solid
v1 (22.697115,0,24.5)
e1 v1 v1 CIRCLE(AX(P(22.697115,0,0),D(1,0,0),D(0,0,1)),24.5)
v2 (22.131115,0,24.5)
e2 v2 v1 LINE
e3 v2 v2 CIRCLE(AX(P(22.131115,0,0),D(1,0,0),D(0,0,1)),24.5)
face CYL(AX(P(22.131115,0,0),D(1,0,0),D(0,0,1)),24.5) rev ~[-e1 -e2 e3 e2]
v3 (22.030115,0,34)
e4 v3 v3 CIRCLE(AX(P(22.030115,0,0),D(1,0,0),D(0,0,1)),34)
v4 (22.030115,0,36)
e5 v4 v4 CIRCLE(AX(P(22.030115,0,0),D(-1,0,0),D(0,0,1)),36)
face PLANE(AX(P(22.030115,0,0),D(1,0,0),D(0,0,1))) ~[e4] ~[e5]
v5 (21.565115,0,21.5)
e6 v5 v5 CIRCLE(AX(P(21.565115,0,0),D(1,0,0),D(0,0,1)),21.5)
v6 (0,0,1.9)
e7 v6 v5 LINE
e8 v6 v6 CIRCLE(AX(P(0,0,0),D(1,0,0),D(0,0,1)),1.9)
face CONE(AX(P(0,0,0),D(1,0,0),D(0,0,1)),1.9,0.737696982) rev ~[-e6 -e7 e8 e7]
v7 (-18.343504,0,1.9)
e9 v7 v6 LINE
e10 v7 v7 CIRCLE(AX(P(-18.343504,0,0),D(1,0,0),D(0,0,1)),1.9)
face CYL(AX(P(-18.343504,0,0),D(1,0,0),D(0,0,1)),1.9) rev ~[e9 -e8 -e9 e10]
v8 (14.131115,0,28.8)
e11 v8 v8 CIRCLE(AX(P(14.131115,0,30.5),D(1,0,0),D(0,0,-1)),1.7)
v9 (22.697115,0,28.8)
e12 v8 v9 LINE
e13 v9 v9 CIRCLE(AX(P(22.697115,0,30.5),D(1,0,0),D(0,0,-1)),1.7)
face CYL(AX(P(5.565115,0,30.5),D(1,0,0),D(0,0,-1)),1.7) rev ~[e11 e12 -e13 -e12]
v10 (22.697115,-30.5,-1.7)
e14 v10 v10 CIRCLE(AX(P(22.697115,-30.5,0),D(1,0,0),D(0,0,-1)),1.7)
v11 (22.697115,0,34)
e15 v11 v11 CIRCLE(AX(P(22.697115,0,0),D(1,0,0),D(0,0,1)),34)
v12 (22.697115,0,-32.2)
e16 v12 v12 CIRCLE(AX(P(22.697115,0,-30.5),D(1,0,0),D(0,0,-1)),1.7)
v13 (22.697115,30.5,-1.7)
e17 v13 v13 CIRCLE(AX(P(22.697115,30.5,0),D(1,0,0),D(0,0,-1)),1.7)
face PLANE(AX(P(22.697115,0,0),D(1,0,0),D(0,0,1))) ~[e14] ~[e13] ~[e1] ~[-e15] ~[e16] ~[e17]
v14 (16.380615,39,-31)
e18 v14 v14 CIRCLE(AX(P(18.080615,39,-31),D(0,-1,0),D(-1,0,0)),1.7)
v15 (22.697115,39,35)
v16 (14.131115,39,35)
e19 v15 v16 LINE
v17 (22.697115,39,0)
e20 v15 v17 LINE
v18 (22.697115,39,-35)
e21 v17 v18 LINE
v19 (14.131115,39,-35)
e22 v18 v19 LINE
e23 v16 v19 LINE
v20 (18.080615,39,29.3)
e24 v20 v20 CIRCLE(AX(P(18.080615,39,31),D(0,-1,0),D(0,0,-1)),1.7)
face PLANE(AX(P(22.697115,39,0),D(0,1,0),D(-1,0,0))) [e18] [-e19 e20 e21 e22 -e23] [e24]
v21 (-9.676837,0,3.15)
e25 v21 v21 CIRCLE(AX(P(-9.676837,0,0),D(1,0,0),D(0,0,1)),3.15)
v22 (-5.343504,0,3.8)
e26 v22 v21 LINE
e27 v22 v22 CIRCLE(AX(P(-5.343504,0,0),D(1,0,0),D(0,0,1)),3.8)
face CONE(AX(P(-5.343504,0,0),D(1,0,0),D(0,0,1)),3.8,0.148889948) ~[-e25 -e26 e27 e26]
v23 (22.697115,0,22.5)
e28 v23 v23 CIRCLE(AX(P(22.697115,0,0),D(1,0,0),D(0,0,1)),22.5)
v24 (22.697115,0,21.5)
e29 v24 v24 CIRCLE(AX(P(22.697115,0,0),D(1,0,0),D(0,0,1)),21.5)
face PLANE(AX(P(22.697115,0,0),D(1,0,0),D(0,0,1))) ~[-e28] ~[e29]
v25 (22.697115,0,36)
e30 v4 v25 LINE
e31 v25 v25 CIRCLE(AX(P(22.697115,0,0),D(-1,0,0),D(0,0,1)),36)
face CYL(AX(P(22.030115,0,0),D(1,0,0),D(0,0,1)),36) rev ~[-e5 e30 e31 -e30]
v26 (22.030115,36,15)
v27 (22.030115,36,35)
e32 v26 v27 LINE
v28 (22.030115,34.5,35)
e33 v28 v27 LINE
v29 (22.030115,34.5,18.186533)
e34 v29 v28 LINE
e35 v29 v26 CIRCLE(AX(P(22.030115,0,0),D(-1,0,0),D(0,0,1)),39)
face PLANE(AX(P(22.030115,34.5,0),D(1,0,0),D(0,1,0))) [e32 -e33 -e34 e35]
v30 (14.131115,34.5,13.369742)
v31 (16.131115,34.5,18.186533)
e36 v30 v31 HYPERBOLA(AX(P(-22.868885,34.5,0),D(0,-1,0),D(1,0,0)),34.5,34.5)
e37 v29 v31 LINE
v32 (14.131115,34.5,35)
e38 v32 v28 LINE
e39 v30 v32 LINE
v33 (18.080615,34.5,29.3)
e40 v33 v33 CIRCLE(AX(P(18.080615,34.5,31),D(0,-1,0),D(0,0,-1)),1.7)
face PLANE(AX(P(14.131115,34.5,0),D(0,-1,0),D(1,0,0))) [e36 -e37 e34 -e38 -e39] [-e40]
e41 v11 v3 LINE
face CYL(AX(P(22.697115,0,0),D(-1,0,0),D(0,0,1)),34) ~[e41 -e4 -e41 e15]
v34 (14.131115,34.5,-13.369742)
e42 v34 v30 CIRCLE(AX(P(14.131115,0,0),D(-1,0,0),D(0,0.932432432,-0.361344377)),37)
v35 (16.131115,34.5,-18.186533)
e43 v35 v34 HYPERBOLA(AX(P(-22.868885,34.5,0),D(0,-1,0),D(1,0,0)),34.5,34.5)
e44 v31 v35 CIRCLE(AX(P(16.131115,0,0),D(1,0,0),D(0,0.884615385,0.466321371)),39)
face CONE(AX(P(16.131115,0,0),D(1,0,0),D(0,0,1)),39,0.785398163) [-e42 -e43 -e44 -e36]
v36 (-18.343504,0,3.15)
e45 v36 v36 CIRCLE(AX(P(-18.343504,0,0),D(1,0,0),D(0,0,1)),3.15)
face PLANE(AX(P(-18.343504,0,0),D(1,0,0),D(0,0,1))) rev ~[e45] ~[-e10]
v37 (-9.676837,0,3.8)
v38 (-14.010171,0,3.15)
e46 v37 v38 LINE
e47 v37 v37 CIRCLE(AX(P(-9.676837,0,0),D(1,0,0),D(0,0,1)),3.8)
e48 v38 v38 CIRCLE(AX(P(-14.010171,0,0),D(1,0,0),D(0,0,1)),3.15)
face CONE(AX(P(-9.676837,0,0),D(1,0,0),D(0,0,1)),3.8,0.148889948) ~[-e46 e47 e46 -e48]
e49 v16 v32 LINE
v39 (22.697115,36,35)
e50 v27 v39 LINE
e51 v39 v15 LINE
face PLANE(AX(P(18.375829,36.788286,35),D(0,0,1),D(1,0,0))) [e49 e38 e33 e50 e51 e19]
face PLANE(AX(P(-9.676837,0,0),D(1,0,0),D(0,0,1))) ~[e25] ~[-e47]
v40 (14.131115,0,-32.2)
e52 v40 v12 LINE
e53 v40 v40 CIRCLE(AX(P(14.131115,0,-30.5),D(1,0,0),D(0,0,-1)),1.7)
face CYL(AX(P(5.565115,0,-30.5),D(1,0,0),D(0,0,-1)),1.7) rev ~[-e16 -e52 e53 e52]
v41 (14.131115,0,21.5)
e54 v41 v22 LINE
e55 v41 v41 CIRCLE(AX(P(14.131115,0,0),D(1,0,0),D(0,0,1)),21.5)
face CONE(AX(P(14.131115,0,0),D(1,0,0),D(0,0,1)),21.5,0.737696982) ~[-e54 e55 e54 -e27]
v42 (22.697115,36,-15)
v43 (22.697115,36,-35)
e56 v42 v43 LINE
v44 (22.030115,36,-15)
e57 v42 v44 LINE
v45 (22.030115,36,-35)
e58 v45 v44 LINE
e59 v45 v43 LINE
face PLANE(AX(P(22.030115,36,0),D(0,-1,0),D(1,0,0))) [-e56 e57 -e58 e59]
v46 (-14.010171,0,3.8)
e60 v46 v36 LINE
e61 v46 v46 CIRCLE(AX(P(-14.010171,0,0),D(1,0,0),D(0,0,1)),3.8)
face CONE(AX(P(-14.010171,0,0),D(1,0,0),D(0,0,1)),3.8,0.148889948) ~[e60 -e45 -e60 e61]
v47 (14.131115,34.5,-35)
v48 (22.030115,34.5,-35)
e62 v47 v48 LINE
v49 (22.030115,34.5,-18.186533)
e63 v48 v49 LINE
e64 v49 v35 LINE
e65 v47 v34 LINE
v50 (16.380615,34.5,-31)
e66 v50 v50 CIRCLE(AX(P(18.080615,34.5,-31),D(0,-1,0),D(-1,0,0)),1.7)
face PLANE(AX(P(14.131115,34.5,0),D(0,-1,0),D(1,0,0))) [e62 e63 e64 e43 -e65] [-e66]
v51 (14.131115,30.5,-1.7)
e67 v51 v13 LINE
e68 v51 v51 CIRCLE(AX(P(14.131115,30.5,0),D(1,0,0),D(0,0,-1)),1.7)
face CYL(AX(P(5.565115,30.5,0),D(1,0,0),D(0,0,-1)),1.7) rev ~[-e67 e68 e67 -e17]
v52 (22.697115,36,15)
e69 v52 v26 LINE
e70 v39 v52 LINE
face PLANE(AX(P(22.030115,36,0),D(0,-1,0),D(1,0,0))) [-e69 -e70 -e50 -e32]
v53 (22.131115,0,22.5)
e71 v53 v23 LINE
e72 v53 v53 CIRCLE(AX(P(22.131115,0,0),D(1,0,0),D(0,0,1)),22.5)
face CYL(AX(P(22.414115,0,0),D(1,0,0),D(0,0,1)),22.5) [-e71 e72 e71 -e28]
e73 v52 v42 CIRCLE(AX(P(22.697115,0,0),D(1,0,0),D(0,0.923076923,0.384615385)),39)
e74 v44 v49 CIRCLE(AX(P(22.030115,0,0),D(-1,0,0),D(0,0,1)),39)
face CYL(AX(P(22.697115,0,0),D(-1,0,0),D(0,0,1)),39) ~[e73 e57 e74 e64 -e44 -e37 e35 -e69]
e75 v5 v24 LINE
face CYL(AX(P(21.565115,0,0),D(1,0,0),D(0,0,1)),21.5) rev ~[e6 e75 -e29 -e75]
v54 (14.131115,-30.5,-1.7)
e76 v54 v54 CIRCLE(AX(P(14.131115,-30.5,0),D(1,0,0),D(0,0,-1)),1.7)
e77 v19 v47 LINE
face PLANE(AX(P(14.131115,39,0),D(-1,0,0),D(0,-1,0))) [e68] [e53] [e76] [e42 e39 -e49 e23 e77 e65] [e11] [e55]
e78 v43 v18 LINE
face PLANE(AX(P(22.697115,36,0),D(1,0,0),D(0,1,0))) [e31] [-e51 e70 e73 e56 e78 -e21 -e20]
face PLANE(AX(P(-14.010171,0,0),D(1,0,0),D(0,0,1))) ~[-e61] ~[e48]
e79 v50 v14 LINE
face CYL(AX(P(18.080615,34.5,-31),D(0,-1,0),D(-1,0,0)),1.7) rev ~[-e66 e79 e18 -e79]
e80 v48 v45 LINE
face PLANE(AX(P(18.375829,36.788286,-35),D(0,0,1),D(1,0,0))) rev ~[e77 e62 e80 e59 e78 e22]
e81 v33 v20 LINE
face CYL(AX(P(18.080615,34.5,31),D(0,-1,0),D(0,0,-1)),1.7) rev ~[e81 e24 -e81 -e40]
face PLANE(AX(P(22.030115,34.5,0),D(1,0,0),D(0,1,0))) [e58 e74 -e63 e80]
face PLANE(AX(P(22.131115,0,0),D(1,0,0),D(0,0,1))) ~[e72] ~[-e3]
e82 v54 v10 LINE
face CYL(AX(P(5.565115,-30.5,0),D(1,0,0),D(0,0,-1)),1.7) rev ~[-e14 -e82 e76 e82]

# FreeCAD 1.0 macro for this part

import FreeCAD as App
import Part
import Sketcher

V = App.Vector
Q = App.Units.Quantity


def edges_at(feature, points):
    """Names of the edges that pass closest to the given points."""
    edges = feature.Shape.Edges
    near = lambda p: min(range(len(edges)), key=lambda i: edges[i].distToShape(Part.Vertex(*p))[0])
    return sorted({f"Edge{near(p) + 1}" for p in points})


def add_polygon(sketch, points):
    """Adds a closed chain of lines whose ends are joined by coincident constraints."""
    first, n = sketch.GeometryCount, len(points)
    for a, b in zip(points, points[1:] + points[:1]):
        sketch.addGeometry(Part.LineSegment(App.Vector(*a, 0), App.Vector(*b, 0)), False)
    for i in range(n):
        sketch.addConstraint(Sketcher.Constraint("Coincident", first + i, 2, first + (i + 1) % n, 1))

doc = App.newDocument("Part")
params = doc.addObject("Spreadsheet::Sheet", "Params")
for row, (alias, value) in enumerate([
    ("sketch1_height", "1 mm"),
    ("sketch1_height2", "2 mm"),
    ("sketch1_height3", "3 mm"),
    ("sketch1_height4", "17.5 mm"),
    ("sketch1_height5", "0.65 mm"),
    ("revolution_angle", "360 deg"),
    ("sketch2_diameter", "3.4 mm"),
    ("hole_diameter", "3.4 mm"),
    ("hole_depth", "8.566 mm"),
    ("chamfer_size", "2 mm"),
    ("sketch3_height", "3 mm"),
    ("sketch3_height2", "4.5 mm"),
    ("pad1_length", "70 mm"),
    ("sketch4_diameter", "3.4 mm"),
    ("pocket1_length", "10 mm"),
], start=1):
    params.set(f"A{row}", alias)
    params.set(f"B{row}", "=" + value)
    params.setAlias(f"B{row}", alias)

body = doc.addObject("PartDesign::Body", "Body")

# Sketch on XY plane
sketch1 = body.newObject("Sketcher::SketchObject", "Sketch")
sketch1.AttachmentSupport = (doc.getObject("XY_Plane"), [""])
sketch1.MapMode = "FlatFace"
add_polygon(sketch1, [(14.1, 39), (14.1, 21.5), (-5.3, 3.8), (-9.7, 3.1), (-9.7, 3.8), (-14, 3.1), (-14, 3.8), (-18.3, 3.1), (-18.3, 1.9), (0, 1.9), (21.6, 21.5), (22.7, 21.5), (22.7, 22.5), (22.1, 22.5), (22.1, 24.5), (22.7, 24.5), (22.7, 34), (22, 34), (22, 36), (22.7, 36), (22.7, 39)])  # lines 0-20
sketch1.addConstraint(Sketcher.Constraint("Vertical", 0))
sketch1.addConstraint(Sketcher.Constraint("Vertical", 3))
sketch1.addConstraint(Sketcher.Constraint("Vertical", 5))
sketch1.addConstraint(Sketcher.Constraint("Vertical", 7))
sketch1.addConstraint(Sketcher.Constraint("Horizontal", 8))
sketch1.addConstraint(Sketcher.Constraint("Horizontal", 10))
sketch1.addConstraint(Sketcher.Constraint("Vertical", 11))
sketch1.addConstraint(Sketcher.Constraint("Horizontal", 12))
sketch1.addConstraint(Sketcher.Constraint("Vertical", 13))
sketch1.addConstraint(Sketcher.Constraint("Horizontal", 14))
sketch1.addConstraint(Sketcher.Constraint("Vertical", 15))
sketch1.addConstraint(Sketcher.Constraint("Horizontal", 16))
sketch1.addConstraint(Sketcher.Constraint("Vertical", 17))
sketch1.addConstraint(Sketcher.Constraint("Horizontal", 18))
sketch1.addConstraint(Sketcher.Constraint("Vertical", 19))
sketch1.addConstraint(Sketcher.Constraint("Horizontal", 20))
sketch1.addConstraint(Sketcher.Constraint("PointOnObject", 8, 2, -2))
sketch1.addConstraint(Sketcher.Constraint("Parallel", 2, 4))
sketch1.addConstraint(Sketcher.Constraint("Parallel", 4, 6))
sketch1.addConstraint(Sketcher.Constraint("Parallel", 1, 9))
sketch1.addConstraint(Sketcher.Constraint("Horizontal", 1, 2, 3, 2))
sketch1.addConstraint(Sketcher.Constraint("Horizontal", 2, 2, 4, 2))
sketch1.addConstraint(Sketcher.Constraint("Horizontal", 3, 2, 5, 2))
sketch1.addConstraint(Sketcher.Constraint("Horizontal", 4, 2, 6, 2))
sketch1.addConstraint(Sketcher.Constraint("Horizontal", 0, 2, 9, 2))
sketch1.addConstraint(Sketcher.Constraint("Vertical", 11, 2, 14, 2))
sketch1.addConstraint(Sketcher.Constraint("Vertical", 15, 2, 18, 2))
sketch1.addConstraint(Sketcher.Constraint("Equal", 13, 17))
sketch1.addConstraint(Sketcher.Constraint("DistanceY", 11, 1, 11, 2, Q("1 mm")))
sketch1.addConstraint(Sketcher.Constraint("DistanceY", 13, 1, 13, 2, Q("2 mm")))
sketch1.addConstraint(Sketcher.Constraint("DistanceY", 19, 1, 19, 2, Q("3 mm")))
sketch1.addConstraint(Sketcher.Constraint("DistanceY", 0, 2, 0, 1, Q("17.5 mm")))
sketch1.addConstraint(Sketcher.Constraint("DistanceY", -1, 1, 15, 2, Q("34 mm")))
sketch1.addConstraint(Sketcher.Constraint("DistanceX", 6, 2, 1, 2, Q("13 mm")))
sketch1.addConstraint(Sketcher.Constraint("DistanceX", 0, 2, 12, 2, Q("8 mm")))
sketch1.addConstraint(Sketcher.Constraint("DistanceY", 3, 1, 3, 2, Q("0.65 mm")))
sketch1.addConstraint(Sketcher.Constraint("DistanceY", 7, 2, 7, 1, Q("1.25 mm")))
sketch1.addConstraint(Sketcher.Constraint("DistanceY", -1, 1, 1, 2, Q("3.8 mm")))
sketch1.addConstraint(Sketcher.Constraint("DistanceX", 10, 1, 10, 2, Q("1.132 mm")))
sketch1.addConstraint(Sketcher.Constraint("DistanceX", 12, 2, 12, 1, Q("0.566 mm")))
sketch1.addConstraint(Sketcher.Constraint("DistanceX", 16, 2, 16, 1, Q("0.667 mm")))
sketch1.addConstraint(Sketcher.Constraint("Distance", 1, Q("26.31636 mm")))
sketch1.setExpression("Constraints[49]", "Params.sketch1_height")
sketch1.setExpression("Constraints[50]", "Params.sketch1_height2")
sketch1.setExpression("Constraints[51]", "Params.sketch1_height3")
sketch1.setExpression("Constraints[52]", "Params.sketch1_height4")
sketch1.setExpression("Constraints[56]", "Params.sketch1_height5")
revolution = body.newObject("PartDesign::Revolution", "Revolution")
revolution.Profile = sketch1
revolution.ReferenceAxis = (sketch1, ["H_Axis"])
revolution.setExpression("Angle", "Params.revolution_angle")

# Sketch on YZ plane
sketch2 = body.newObject("Sketcher::SketchObject", "Sketch001")
sketch2.AttachmentSupport = (doc.getObject("YZ_Plane"), [""])
sketch2.MapMode = "FlatFace"
sketch2.AttachmentOffset = App.Placement(V(0, 0, 14.131115), App.Rotation())
sketch2.addGeometry(Part.Circle(V(-30.5, 0, 0), V(0, 0, 1), 1.7), False)
sketch2.addGeometry(Part.Circle(V(30.5, 0, 0), V(0, 0, 1), 1.7), False)
sketch2.addGeometry(Part.Circle(V(0, 30.5, 0), V(0, 0, 1), 1.7), False)
sketch2.addGeometry(Part.Circle(V(0, -30.5, 0), V(0, 0, 1), 1.7), False)
sketch2.addConstraint(Sketcher.Constraint("Equal", 0, 1))
sketch2.addConstraint(Sketcher.Constraint("Equal", 1, 2))
sketch2.addConstraint(Sketcher.Constraint("Equal", 2, 3))
sketch2.addConstraint(Sketcher.Constraint("Symmetric", 0, 3, 1, 3, -1, 1))
sketch2.addConstraint(Sketcher.Constraint("Symmetric", 2, 3, 3, 3, -1, 1))
sketch2.addConstraint(Sketcher.Constraint("PointOnObject", 0, 3, -1))
sketch2.addConstraint(Sketcher.Constraint("PointOnObject", 2, 3, -2))
sketch2.addConstraint(Sketcher.Constraint("Diameter", 0, Q("3.4 mm")))
sketch2.addConstraint(Sketcher.Constraint("DistanceX", 0, 3, 1, 3, Q("61 mm")))
sketch2.addConstraint(Sketcher.Constraint("DistanceY", 3, 3, 2, 3, Q("61 mm")))
sketch2.setExpression("Constraints[7]", "Params.sketch2_diameter")
doc.recompute()
hole = body.newObject("PartDesign::Hole", "Hole")
hole.Profile = sketch2
hole.ThreadType = "None"
hole.setExpression("Diameter", "Params.hole_diameter")
hole.DepthType = "Dimension"
hole.setExpression("Depth", "Params.hole_depth")
hole.DrillPoint = "Angled"
hole.DrillPointAngle = 118
hole.Reversed = True
doc.recompute()

chamfer = body.newObject("PartDesign::Chamfer", "Chamfer")
chamfer.Base = (hole, edges_at(hole, [(14.131, 0, -39)]))
chamfer.setExpression("Size", "Params.chamfer_size")

# Sketch on XY plane
sketch3 = body.newObject("Sketcher::SketchObject", "Sketch002")
sketch3.AttachmentSupport = (doc.getObject("XY_Plane"), [""])
sketch3.MapMode = "FlatFace"
add_polygon(sketch3, [(14.1, 39), (14.1, 34.5), (22, 34.5), (22, 36), (22.7, 36), (22.7, 39)])  # lines 0-5
sketch3.addConstraint(Sketcher.Constraint("Vertical", 0))
sketch3.addConstraint(Sketcher.Constraint("Horizontal", 1))
sketch3.addConstraint(Sketcher.Constraint("Vertical", 2))
sketch3.addConstraint(Sketcher.Constraint("Horizontal", 3))
sketch3.addConstraint(Sketcher.Constraint("Vertical", 4))
sketch3.addConstraint(Sketcher.Constraint("Horizontal", 5))
sketch3.addConstraint(Sketcher.Constraint("DistanceY", 4, 1, 4, 2, Q("3 mm")))
sketch3.addConstraint(Sketcher.Constraint("DistanceY", 0, 2, 0, 1, Q("4.5 mm")))
sketch3.addConstraint(Sketcher.Constraint("DistanceY", -1, 1, 2, 2, Q("36 mm")))
sketch3.addConstraint(Sketcher.Constraint("DistanceX", 1, 1, 1, 2, Q("7.899 mm")))
sketch3.addConstraint(Sketcher.Constraint("DistanceX", 3, 1, 3, 2, Q("0.667 mm")))
sketch3.addConstraint(Sketcher.Constraint("DistanceX", -1, 1, 0, 2, Q("14.131115 mm")))
sketch3.setExpression("Constraints[12]", "Params.sketch3_height")
sketch3.setExpression("Constraints[13]", "Params.sketch3_height2")
pad1 = body.newObject("PartDesign::Pad", "Pad")
pad1.Profile = sketch3
pad1.setExpression("Length", "Params.pad1_length")
pad1.Midplane = True

# Sketch on XZ plane
sketch4 = body.newObject("Sketcher::SketchObject", "Sketch003")
sketch4.AttachmentSupport = (doc.getObject("XZ_Plane"), [""])
sketch4.MapMode = "FlatFace"
sketch4.AttachmentOffset = App.Placement(V(0, 0, -34.5), App.Rotation())
sketch4.addGeometry(Part.Circle(V(18.1, 31, 0), V(0, 0, 1), 1.7), False)
sketch4.addGeometry(Part.Circle(V(18.1, -31, 0), V(0, 0, 1), 1.7), False)
sketch4.addConstraint(Sketcher.Constraint("Equal", 0, 1))
sketch4.addConstraint(Sketcher.Constraint("Symmetric", 0, 3, 1, 3, -1))
sketch4.addConstraint(Sketcher.Constraint("Diameter", 0, Q("3.4 mm")))
sketch4.addConstraint(Sketcher.Constraint("DistanceY", -1, 1, 0, 3, Q("31 mm")))
sketch4.addConstraint(Sketcher.Constraint("DistanceX", -1, 1, 0, 3, Q("18.080615 mm")))
sketch4.setExpression("Constraints[2]", "Params.sketch4_diameter")
pocket1 = body.newObject("PartDesign::Pocket", "Pocket")
pocket1.Profile = sketch4
pocket1.setExpression("Length", "Params.pocket1_length")

doc.recompute()
